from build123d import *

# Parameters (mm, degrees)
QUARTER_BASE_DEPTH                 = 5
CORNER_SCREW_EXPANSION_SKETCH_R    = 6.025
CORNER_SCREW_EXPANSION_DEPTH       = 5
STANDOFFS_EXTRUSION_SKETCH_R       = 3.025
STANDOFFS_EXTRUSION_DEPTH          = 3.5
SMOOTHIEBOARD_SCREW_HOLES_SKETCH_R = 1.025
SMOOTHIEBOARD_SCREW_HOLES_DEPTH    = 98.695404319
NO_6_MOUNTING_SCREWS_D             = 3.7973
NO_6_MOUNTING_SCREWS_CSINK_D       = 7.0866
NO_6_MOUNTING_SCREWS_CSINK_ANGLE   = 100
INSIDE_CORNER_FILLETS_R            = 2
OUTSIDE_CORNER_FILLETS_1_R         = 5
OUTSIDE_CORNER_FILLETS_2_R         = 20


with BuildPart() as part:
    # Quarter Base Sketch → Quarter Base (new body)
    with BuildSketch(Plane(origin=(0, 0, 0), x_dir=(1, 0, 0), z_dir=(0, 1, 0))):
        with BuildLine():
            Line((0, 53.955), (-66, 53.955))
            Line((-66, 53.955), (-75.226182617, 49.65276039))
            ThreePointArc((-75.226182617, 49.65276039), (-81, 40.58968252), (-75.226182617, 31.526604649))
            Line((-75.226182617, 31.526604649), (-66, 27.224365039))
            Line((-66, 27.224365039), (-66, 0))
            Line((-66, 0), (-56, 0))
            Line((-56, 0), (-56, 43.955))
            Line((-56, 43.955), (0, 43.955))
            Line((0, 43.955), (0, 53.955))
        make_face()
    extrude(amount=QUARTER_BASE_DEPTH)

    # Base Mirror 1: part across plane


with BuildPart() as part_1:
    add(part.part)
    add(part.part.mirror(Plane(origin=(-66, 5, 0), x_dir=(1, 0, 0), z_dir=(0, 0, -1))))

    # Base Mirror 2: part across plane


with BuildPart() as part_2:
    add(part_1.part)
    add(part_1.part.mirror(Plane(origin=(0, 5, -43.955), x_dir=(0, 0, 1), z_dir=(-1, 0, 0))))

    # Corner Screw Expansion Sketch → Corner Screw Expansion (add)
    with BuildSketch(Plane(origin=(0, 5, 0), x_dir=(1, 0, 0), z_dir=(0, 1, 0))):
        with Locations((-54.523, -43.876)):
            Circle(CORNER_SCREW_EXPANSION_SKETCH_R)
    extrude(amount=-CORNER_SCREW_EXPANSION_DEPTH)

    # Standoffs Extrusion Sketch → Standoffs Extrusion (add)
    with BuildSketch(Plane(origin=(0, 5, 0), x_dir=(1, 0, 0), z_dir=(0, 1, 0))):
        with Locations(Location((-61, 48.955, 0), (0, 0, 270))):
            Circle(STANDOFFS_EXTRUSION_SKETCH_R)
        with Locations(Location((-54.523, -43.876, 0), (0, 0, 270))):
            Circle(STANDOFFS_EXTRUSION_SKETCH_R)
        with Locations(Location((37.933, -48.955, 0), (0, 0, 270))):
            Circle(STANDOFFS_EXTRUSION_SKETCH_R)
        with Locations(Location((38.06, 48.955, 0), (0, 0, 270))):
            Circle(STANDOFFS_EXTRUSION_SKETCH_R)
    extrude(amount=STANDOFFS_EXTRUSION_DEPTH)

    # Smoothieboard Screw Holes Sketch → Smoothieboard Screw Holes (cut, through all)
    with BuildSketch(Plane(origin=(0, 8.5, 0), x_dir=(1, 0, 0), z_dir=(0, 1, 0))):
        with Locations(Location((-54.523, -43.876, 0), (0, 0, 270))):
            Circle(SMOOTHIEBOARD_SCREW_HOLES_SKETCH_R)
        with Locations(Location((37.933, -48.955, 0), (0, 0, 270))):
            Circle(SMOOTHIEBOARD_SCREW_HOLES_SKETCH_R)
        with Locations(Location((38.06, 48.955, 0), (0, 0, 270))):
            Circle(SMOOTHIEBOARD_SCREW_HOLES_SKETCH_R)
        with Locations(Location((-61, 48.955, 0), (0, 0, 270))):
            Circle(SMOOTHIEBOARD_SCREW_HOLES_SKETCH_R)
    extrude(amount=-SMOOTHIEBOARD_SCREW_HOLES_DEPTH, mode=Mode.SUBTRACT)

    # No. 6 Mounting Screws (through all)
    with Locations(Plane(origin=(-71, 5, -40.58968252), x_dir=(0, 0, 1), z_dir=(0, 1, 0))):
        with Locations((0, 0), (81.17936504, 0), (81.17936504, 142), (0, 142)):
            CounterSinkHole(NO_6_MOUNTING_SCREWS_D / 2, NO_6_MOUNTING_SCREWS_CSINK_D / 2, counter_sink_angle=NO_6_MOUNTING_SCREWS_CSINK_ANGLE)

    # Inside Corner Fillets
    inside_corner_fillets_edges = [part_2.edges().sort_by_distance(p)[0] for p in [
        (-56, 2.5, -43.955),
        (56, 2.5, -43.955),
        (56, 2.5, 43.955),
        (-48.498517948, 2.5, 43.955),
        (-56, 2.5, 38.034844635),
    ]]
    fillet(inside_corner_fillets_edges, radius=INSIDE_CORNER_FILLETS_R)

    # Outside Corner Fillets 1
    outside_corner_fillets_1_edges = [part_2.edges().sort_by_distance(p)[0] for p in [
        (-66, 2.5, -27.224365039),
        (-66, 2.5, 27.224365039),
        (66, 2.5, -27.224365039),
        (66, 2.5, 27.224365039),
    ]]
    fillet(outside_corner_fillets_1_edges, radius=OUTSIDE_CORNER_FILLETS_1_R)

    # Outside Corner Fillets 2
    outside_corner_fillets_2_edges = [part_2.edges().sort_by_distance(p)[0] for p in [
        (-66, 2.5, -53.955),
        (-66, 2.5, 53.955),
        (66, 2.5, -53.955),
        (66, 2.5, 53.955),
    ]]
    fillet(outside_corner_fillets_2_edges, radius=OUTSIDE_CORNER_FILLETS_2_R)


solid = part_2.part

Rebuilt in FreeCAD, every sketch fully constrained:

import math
import FreeCAD as App
import Part
import Sketcher
from FreeCAD import Vector
Q = App.Units.Quantity


def edges_at(feature, points):
    """Names of the edges that pass closest to the given points."""
    edges = feature.Shape.Edges
    near = lambda p: min(range(len(edges)), key=lambda i: edges[i].distToShape(Part.Vertex(*p))[0])
    return sorted({f"Edge{near(p) + 1}" for p in points})

doc = App.newDocument("Part")
body = doc.addObject("PartDesign::Body", "Body")

# Sketch on XZ plane
sketch1 = body.newObject("Sketcher::SketchObject", "Sketch")
sketch1.AttachmentSupport = (doc.getObject("XZ_Plane"), [""])
sketch1.MapMode = "FlatFace"
sketch1.addGeometry(Part.LineSegment(Vector(0, -54, 0), Vector(-66, -54, 0)), False)
sketch1.addGeometry(Part.LineSegment(Vector(-66, -54, 0), Vector(-75, -50, 0)), False)
sketch1.addGeometry(Part.ArcOfCircle(Part.Circle(Vector(-71, -41, 0), Vector(0, 0, 1), 10), math.radians(115), math.radians(245)), False)
sketch1.addGeometry(Part.LineSegment(Vector(-75, -32, 0), Vector(-66, -27, 0)), False)
sketch1.addGeometry(Part.LineSegment(Vector(-66, -27, 0), Vector(-66, 0, 0)), False)
sketch1.addGeometry(Part.LineSegment(Vector(-66, 0, 0), Vector(-56, 0, 0)), False)
sketch1.addGeometry(Part.LineSegment(Vector(-56, 0, 0), Vector(-56, -44, 0)), False)
sketch1.addGeometry(Part.LineSegment(Vector(-56, -44, 0), Vector(0, -44, 0)), False)
sketch1.addGeometry(Part.LineSegment(Vector(0, -44, 0), Vector(0, -54, 0)), False)
sketch1.addConstraint(Sketcher.Constraint("Coincident", 0, 2, 1, 1))
sketch1.addConstraint(Sketcher.Constraint("Tangent", 1, 2, 2, 2))
sketch1.addConstraint(Sketcher.Constraint("Tangent", 2, 1, 3, 1))
sketch1.addConstraint(Sketcher.Constraint("Coincident", 3, 2, 4, 1))
sketch1.addConstraint(Sketcher.Constraint("Coincident", 4, 2, 5, 1))
sketch1.addConstraint(Sketcher.Constraint("Coincident", 5, 2, 6, 1))
sketch1.addConstraint(Sketcher.Constraint("Coincident", 6, 2, 7, 1))
sketch1.addConstraint(Sketcher.Constraint("Coincident", 7, 2, 8, 1))
sketch1.addConstraint(Sketcher.Constraint("Coincident", 8, 2, 0, 1))
sketch1.addConstraint(Sketcher.Constraint("Horizontal", 0))
sketch1.addConstraint(Sketcher.Constraint("Vertical", 4))
sketch1.addConstraint(Sketcher.Constraint("Horizontal", 5))
sketch1.addConstraint(Sketcher.Constraint("Vertical", 6))
sketch1.addConstraint(Sketcher.Constraint("Horizontal", 7))
sketch1.addConstraint(Sketcher.Constraint("Vertical", 8))
sketch1.addConstraint(Sketcher.Constraint("PointOnObject", 4, 2, -1))
sketch1.addConstraint(Sketcher.Constraint("PointOnObject", 7, 2, -2))
sketch1.addConstraint(Sketcher.Constraint("Vertical", 1, 2, 2, 1))
sketch1.addConstraint(Sketcher.Constraint("Vertical", 0, 2, 3, 2))
sketch1.addConstraint(Sketcher.Constraint("Equal", 5, 8))
sketch1.addConstraint(Sketcher.Constraint("Radius", 2, Q("10 mm")))
sketch1.addConstraint(Sketcher.Constraint("DistanceX", 0, 2, 0, 1, Q("66 mm")))
sketch1.addConstraint(Sketcher.Constraint("DistanceX", 5, 1, 5, 2, Q("10 mm")))
sketch1.addConstraint(Sketcher.Constraint("Angle", 1, Q("155 deg")))
sketch1.addConstraint(Sketcher.Constraint("DistanceX", 2, 3, -1, 1, Q("71 mm")))
sketch1.addConstraint(Sketcher.Constraint("DistanceY", 6, 2, 6, 1, Q("43.955 mm")))
pad1 = body.newObject("PartDesign::Pad", "Pad")
pad1.Profile = sketch1
pad1.Length = 5
pad1.Reversed = True
body2 = doc.addObject("PartDesign::Body", "Body001")
doc.recompute()

body2.BaseFeature = body
doc.recompute()

mirroring = doc.addObject("Part::Mirroring", "Mirroring")
mirroring.Source = body
mirroring.Base = Vector(-66, 5, 0)
mirroring.Normal = Vector(0, 0, -1)
body3 = doc.addObject("PartDesign::Body", "Body002")
body3.BaseFeature = mirroring
boolean = body2.newObject("PartDesign::Boolean", "Boolean")
boolean.Type = "Fuse"
boolean.addObjects([body3])
doc.recompute()
body4 = doc.addObject("PartDesign::Body", "Body003")
doc.recompute()

body4.BaseFeature = body2
doc.recompute()

mirroring2 = doc.addObject("Part::Mirroring", "Mirroring001")
mirroring2.Source = body2
mirroring2.Base = Vector(0, 5, -43.955)
mirroring2.Normal = Vector(-1, 0, 0)
body5 = doc.addObject("PartDesign::Body", "Body004")
body5.BaseFeature = mirroring2
boolean2 = body4.newObject("PartDesign::Boolean", "Boolean001")
boolean2.Type = "Fuse"
boolean2.addObjects([body5])
doc.recompute()

# Sketch on XZ plane
sketch2 = body4.newObject("Sketcher::SketchObject", "Sketch001")
sketch2.AttachmentSupport = (doc.getObject("XZ_Plane003"), [""])
sketch2.MapMode = "FlatFace"
sketch2.AttachmentOffset = App.Placement(Vector(0, 0, -5), App.Rotation())
sketch2.addGeometry(Part.Circle(Vector(-55, 44, 0), Vector(0, 0, 1), 6), False)
sketch2.addConstraint(Sketcher.Constraint("Diameter", 0, Q("12.05 mm")))
sketch2.addConstraint(Sketcher.Constraint("DistanceX", 0, 3, -1, 1, Q("54.523 mm")))
sketch2.addConstraint(Sketcher.Constraint("DistanceY", -1, 1, 0, 3, Q("43.876 mm")))
pad2 = body4.newObject("PartDesign::Pad", "Pad001")
pad2.Profile = sketch2
pad2.Length = 5

# Sketch on XZ plane
sketch3 = body4.newObject("Sketcher::SketchObject", "Sketch002")
sketch3.AttachmentSupport = (doc.getObject("XZ_Plane003"), [""])
sketch3.MapMode = "FlatFace"
sketch3.AttachmentOffset = App.Placement(Vector(0, 0, -5), App.Rotation())
sketch3.addGeometry(Part.Circle(Vector(-61, -49, 0), Vector(0, 0, 1), 3), False)
sketch3.addGeometry(Part.Circle(Vector(-54.5, 43.9, 0), Vector(0, 0, 1), 3), False)
sketch3.addGeometry(Part.Circle(Vector(37.9, 49, 0), Vector(0, 0, 1), 3), False)
sketch3.addGeometry(Part.Circle(Vector(38.1, -49, 0), Vector(0, 0, 1), 3), False)
sketch3.addConstraint(Sketcher.Constraint("Equal", 0, 1))
sketch3.addConstraint(Sketcher.Constraint("Equal", 1, 2))
sketch3.addConstraint(Sketcher.Constraint("Equal", 2, 3))
sketch3.addConstraint(Sketcher.Constraint("Horizontal", 0, 3, 3, 3))
sketch3.addConstraint(Sketcher.Constraint("Diameter", 0, Q("6.05 mm")))
sketch3.addConstraint(Sketcher.Constraint("DistanceX", 0, 3, -1, 1, Q("61 mm")))
sketch3.addConstraint(Sketcher.Constraint("DistanceX", -1, 1, 3, 3, Q("38.06 mm")))
sketch3.addConstraint(Sketcher.Constraint("DistanceY", 0, 3, 2, 3, Q("97.91 mm")))
sketch3.addConstraint(Sketcher.Constraint("DistanceY", 0, 3, -1, 1, Q("48.955 mm")))
sketch3.addConstraint(Sketcher.Constraint("DistanceX", 1, 3, -1, 1, Q("54.523 mm")))
sketch3.addConstraint(Sketcher.Constraint("DistanceY", -1, 1, 1, 3, Q("43.876 mm")))
sketch3.addConstraint(Sketcher.Constraint("DistanceX", -1, 1, 2, 3, Q("37.933 mm")))
pad3 = body4.newObject("PartDesign::Pad", "Pad002")
pad3.Profile = sketch3
pad3.Length = 3.5
pad3.Reversed = True

# Sketch on XZ plane
sketch4 = body4.newObject("Sketcher::SketchObject", "Sketch003")
sketch4.AttachmentSupport = (doc.getObject("XZ_Plane003"), [""])
sketch4.MapMode = "FlatFace"
sketch4.AttachmentOffset = App.Placement(Vector(0, 0, -8.5), App.Rotation())
sketch4.addGeometry(Part.Circle(Vector(-54.5, 43.9, 0), Vector(0, 0, 1), 1), False)
sketch4.addGeometry(Part.Circle(Vector(37.9, 49, 0), Vector(0, 0, 1), 1), False)
sketch4.addGeometry(Part.Circle(Vector(38.1, -49, 0), Vector(0, 0, 1), 1), False)
sketch4.addGeometry(Part.Circle(Vector(-61, -49, 0), Vector(0, 0, 1), 1), False)
sketch4.addConstraint(Sketcher.Constraint("Equal", 0, 1))
sketch4.addConstraint(Sketcher.Constraint("Equal", 1, 2))
sketch4.addConstraint(Sketcher.Constraint("Equal", 2, 3))
sketch4.addConstraint(Sketcher.Constraint("Horizontal", 2, 3, 3, 3))
sketch4.addConstraint(Sketcher.Constraint("Diameter", 0, Q("2.05 mm")))
sketch4.addConstraint(Sketcher.Constraint("DistanceX", 3, 3, -1, 1, Q("61 mm")))
sketch4.addConstraint(Sketcher.Constraint("DistanceX", -1, 1, 2, 3, Q("38.06 mm")))
sketch4.addConstraint(Sketcher.Constraint("DistanceY", 2, 3, 1, 3, Q("97.91 mm")))
sketch4.addConstraint(Sketcher.Constraint("DistanceX", 0, 3, -1, 1, Q("54.523 mm")))
sketch4.addConstraint(Sketcher.Constraint("DistanceY", -1, 1, 0, 3, Q("43.876 mm")))
sketch4.addConstraint(Sketcher.Constraint("DistanceX", -1, 1, 1, 3, Q("37.933 mm")))
sketch4.addConstraint(Sketcher.Constraint("DistanceY", -1, 1, 1, 3, Q("48.955 mm")))
pocket1 = body4.newObject("PartDesign::Pocket", "Pocket")
pocket1.Profile = sketch4
pocket1.Type = "ThroughAll"
pocket1.Reversed = True

# Sketch on XZ plane
sketch5 = body4.newObject("Sketcher::SketchObject", "Sketch004")
sketch5.AttachmentSupport = (doc.getObject("XZ_Plane003"), [""])
sketch5.MapMode = "FlatFace"
sketch5.AttachmentOffset = App.Placement(Vector(0, 0, -5), App.Rotation())
sketch5.addGeometry(Part.Circle(Vector(-71, -40.6, 0), Vector(0, 0, 1), 1.9), False)
sketch5.addGeometry(Part.Circle(Vector(-71, 40.6, 0), Vector(0, 0, 1), 1.9), False)
sketch5.addGeometry(Part.Circle(Vector(71, 40.6, 0), Vector(0, 0, 1), 1.9), False)
sketch5.addGeometry(Part.Circle(Vector(71, -40.6, 0), Vector(0, 0, 1), 1.9), False)
sketch5.addConstraint(Sketcher.Constraint("Equal", 0, 1))
sketch5.addConstraint(Sketcher.Constraint("Equal", 1, 2))
sketch5.addConstraint(Sketcher.Constraint("Equal", 2, 3))
sketch5.addConstraint(Sketcher.Constraint("Symmetric", 0, 3, 2, 3, -1, 1))
sketch5.addConstraint(Sketcher.Constraint("Symmetric", 1, 3, 3, 3, -1, 1))
sketch5.addConstraint(Sketcher.Constraint("Symmetric", 1, 3, 2, 3, -2))
sketch5.addConstraint(Sketcher.Constraint("DistanceX", 0, 3, -1, 1, Q("71 mm")))
sketch5.addConstraint(Sketcher.Constraint("Diameter", 0, Q("3.7973 mm")))
sketch5.addConstraint(Sketcher.Constraint("DistanceY", 0, 3, -1, 1, Q("40.589683 mm")))
doc.recompute()
hole = body4.newObject("PartDesign::Hole", "Hole")
hole.Profile = sketch5
hole.ThreadType = "None"
hole.Diameter = 3.7973
hole.DepthType = "ThroughAll"
hole.HoleCutType = "Countersink"
hole.HoleCutDiameter = 7.0866
hole.HoleCutCountersinkAngle = 100
hole.Reversed = True
doc.recompute()

fillet = body4.newObject("PartDesign::Fillet", "Fillet")
fillet.Base = (hole, edges_at(hole, [
    (-56, 2.5, -43.955),
    (56, 2.5, -43.955),
    (56, 2.5, 43.955),
    (-48.499, 2.5, 43.955),
    (-56, 2.5, 38.035),
]))
fillet.Radius = 2
doc.recompute()

fillet2 = body4.newObject("PartDesign::Fillet", "Fillet001")
fillet2.Base = (fillet, edges_at(fillet, [
    (-66, 2.5, -27.224),
    (-66, 2.5, 27.224),
    (66, 2.5, -27.224),
    (66, 2.5, 27.224),
]))
fillet2.Radius = 5
doc.recompute()

fillet3 = body4.newObject("PartDesign::Fillet", "Fillet002")
fillet3.Base = (fillet2, edges_at(fillet2, [
    (-66, 2.5, -53.955),
    (-66, 2.5, 53.955),
    (66, 2.5, -53.955),
    (66, 2.5, 53.955),
]))
fillet3.Radius = 20
mirroring.Visibility = False
mirroring2.Visibility = False

doc.recompute()
